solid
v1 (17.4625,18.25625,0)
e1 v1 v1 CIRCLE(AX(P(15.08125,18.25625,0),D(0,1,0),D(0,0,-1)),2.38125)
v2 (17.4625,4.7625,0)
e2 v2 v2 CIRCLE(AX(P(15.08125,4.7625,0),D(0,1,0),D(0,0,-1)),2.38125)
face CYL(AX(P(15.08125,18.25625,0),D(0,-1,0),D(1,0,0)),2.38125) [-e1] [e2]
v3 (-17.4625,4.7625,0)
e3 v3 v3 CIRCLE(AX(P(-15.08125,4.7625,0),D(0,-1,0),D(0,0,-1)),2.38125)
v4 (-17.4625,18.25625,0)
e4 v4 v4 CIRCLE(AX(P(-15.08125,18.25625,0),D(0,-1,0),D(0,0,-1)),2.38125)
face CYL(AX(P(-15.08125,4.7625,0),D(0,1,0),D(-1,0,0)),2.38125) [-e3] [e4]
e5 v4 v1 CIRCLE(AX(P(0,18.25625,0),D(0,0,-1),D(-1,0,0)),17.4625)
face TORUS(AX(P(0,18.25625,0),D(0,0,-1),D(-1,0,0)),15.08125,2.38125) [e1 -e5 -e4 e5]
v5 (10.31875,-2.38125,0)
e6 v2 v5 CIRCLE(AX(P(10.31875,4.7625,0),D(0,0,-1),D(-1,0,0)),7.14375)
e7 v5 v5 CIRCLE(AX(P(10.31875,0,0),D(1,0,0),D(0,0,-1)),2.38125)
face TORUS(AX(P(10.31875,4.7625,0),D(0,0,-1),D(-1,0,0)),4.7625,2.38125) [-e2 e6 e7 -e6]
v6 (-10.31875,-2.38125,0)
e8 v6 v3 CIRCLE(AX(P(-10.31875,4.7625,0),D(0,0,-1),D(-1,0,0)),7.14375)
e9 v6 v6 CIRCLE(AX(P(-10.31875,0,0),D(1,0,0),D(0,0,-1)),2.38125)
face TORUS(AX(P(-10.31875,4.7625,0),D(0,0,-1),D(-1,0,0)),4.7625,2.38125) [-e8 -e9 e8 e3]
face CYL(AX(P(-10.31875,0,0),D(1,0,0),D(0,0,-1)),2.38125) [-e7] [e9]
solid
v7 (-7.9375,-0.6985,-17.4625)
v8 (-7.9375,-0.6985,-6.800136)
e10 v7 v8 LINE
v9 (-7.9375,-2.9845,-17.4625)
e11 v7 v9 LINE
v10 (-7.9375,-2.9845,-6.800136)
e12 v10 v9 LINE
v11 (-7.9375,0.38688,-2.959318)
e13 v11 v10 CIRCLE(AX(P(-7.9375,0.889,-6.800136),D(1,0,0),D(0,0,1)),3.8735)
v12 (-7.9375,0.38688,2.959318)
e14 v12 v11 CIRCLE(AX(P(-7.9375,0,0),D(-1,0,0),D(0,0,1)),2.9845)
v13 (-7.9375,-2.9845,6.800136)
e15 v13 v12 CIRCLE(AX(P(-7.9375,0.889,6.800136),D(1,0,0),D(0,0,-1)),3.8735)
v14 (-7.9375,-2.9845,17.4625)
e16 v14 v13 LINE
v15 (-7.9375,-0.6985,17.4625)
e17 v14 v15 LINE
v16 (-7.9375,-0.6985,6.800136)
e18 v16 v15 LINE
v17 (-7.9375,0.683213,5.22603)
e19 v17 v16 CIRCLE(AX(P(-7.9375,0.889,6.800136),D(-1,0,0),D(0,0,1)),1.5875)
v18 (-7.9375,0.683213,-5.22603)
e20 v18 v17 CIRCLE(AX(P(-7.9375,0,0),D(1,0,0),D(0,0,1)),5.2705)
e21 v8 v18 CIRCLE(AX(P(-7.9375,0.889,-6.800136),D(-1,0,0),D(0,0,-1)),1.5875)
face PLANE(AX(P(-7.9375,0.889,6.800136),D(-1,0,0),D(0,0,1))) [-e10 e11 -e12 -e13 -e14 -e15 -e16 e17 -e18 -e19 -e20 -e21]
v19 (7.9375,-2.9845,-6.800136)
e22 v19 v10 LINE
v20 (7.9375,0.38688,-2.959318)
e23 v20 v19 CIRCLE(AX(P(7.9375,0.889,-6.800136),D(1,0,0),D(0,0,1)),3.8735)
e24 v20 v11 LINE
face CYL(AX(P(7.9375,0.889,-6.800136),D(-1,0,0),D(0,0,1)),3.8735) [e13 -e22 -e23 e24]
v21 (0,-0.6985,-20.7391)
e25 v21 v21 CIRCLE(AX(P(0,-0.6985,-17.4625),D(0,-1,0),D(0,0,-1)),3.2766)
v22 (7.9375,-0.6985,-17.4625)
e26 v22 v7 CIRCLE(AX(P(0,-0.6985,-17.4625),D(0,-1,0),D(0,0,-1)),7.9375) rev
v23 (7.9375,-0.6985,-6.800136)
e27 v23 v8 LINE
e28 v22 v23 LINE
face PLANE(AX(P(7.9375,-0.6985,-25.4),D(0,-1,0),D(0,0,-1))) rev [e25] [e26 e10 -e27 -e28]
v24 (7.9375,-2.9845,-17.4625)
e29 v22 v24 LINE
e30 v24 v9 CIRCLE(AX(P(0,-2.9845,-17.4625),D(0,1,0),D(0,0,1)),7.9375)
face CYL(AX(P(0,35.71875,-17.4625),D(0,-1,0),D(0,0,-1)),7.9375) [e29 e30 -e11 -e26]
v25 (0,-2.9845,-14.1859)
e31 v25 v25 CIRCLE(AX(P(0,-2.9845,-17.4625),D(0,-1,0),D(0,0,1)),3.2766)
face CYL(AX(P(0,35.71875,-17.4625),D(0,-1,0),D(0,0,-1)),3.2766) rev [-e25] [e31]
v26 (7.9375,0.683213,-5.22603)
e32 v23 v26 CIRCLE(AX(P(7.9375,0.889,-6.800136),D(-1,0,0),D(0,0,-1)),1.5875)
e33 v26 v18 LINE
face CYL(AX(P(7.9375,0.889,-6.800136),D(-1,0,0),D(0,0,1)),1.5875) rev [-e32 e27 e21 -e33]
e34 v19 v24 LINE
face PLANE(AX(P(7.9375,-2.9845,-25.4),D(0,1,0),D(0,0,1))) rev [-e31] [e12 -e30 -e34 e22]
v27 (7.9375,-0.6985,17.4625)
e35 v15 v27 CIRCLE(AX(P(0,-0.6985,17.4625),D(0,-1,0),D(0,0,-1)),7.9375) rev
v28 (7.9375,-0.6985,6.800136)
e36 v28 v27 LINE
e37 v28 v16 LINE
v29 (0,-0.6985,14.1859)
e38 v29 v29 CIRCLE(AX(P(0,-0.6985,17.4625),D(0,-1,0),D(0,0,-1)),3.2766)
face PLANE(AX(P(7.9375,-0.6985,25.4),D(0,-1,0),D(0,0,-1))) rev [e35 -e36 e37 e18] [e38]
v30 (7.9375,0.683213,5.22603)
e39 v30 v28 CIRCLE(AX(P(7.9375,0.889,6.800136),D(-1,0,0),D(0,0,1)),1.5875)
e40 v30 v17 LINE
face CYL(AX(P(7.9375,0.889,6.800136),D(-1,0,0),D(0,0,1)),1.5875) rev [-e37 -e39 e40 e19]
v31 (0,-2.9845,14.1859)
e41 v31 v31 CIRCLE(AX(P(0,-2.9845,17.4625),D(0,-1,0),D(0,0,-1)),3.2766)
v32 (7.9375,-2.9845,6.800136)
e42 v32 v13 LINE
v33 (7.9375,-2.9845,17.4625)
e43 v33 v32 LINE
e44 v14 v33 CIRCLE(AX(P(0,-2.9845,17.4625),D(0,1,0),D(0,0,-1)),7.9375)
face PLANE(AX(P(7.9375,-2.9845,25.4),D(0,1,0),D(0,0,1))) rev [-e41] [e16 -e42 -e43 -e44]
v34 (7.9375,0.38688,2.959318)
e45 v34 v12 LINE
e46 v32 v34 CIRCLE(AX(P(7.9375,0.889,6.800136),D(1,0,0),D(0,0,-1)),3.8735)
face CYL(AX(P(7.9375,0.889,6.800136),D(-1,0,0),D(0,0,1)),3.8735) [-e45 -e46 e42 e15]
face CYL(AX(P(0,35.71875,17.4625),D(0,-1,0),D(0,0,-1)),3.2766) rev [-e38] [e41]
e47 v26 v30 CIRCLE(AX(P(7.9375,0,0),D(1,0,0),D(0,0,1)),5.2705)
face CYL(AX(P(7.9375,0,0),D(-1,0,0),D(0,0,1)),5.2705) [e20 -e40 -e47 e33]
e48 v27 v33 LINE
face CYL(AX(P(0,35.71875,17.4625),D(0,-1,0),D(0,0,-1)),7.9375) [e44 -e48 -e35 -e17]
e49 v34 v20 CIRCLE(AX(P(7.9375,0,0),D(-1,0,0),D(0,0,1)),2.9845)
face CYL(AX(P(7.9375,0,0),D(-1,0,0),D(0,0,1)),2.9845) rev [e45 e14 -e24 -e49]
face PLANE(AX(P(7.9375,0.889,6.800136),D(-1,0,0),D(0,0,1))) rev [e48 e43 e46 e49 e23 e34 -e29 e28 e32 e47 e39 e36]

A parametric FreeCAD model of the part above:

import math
import FreeCAD as App
import Part
import Sketcher
Q = App.Units.Quantity

doc = App.newDocument("Part")
body = doc.addObject("PartDesign::Body", "Body")

# Sketch on YZ plane
sketch1 = body.newObject("Sketcher::SketchObject", "Sketch")
sketch1.AttachmentSupport = (doc.getObject("YZ_Plane"), [""])
sketch1.MapMode = "FlatFace"
sketch1.addGeometry(Part.Circle(App.Vector(0, 0, 0), App.Vector(0, 0, 1), 2.4), False)
sketch1.addConstraint(Sketcher.Constraint("Coincident", 0, 3, -1, 1))
sketch1.addConstraint(Sketcher.Constraint("Diameter", 0, Q("0.1875 in")))

# Sketch on XY plane
sketch2 = body.newObject("Sketcher::SketchObject", "Sketch001")
sketch2.AttachmentSupport = (doc.getObject("XY_Plane"), [""])
sketch2.MapMode = "FlatFace"
sketch2.addGeometry(Part.LineSegment(App.Vector(-15.1, 18.3, 0), App.Vector(-15.1, 4.8, 0)), False)
sketch2.addGeometry(Part.ArcOfCircle(Part.Circle(App.Vector(-10.3, 4.8, 0), App.Vector(0, 0, 1), 4.8), math.radians(-180), math.radians(-90)), False)
sketch2.addGeometry(Part.LineSegment(App.Vector(-10.3, 0, 0), App.Vector(10.3, 0, 0)), False)
sketch2.addGeometry(Part.ArcOfCircle(Part.Circle(App.Vector(10.3, 4.8, 0), App.Vector(0, 0, 1), 4.8), math.radians(-90), math.radians(0)), False)
sketch2.addGeometry(Part.LineSegment(App.Vector(15.1, 4.8, 0), App.Vector(15.1, 18.3, 0)), False)
sketch2.addGeometry(Part.ArcOfCircle(Part.Circle(App.Vector(0, 18.3, 0), App.Vector(0, 0, 1), 15.1), math.radians(0), math.radians(180)), False)
sketch2.addConstraint(Sketcher.Constraint("Tangent", 0, 2, 1, 1))
sketch2.addConstraint(Sketcher.Constraint("Tangent", 1, 2, 2, 1))
sketch2.addConstraint(Sketcher.Constraint("Tangent", 2, 2, 3, 1))
sketch2.addConstraint(Sketcher.Constraint("Tangent", 3, 2, 4, 1))
sketch2.addConstraint(Sketcher.Constraint("Tangent", 4, 2, 5, 1))
sketch2.addConstraint(Sketcher.Constraint("Tangent", 5, 2, 0, 1))
sketch2.addConstraint(Sketcher.Constraint("Vertical", 0))
sketch2.addConstraint(Sketcher.Constraint("Horizontal", 2))
sketch2.addConstraint(Sketcher.Constraint("Vertical", 4))
sketch2.addConstraint(Sketcher.Constraint("Equal", 1, 3))
sketch2.addConstraint(Sketcher.Constraint("Symmetric", 1, 2, 2, 2, -1, 1))
sketch2.addConstraint(Sketcher.Constraint("Radius", 1, Q("0.1875 in")))
sketch2.addConstraint(Sketcher.Constraint("Radius", 5, Q("0.59375 in")))
sketch2.addConstraint(Sketcher.Constraint("DistanceY", 0, 2, 0, 1, Q("0.53125 in")))
doc.recompute()

additivepipe = body.newObject("PartDesign::AdditivePipe", "AdditivePipe")
additivepipe.Profile = sketch1
additivepipe.Spine = (sketch2, ["Edge1", "Edge2", "Edge3", "Edge4", "Edge5", "Edge6"])
body2 = doc.addObject("PartDesign::Body", "Body001")

# Sketch on YZ plane
sketch3 = body2.newObject("Sketcher::SketchObject", "Sketch002")
sketch3.AttachmentSupport = (doc.getObject("YZ_Plane001"), [""])
sketch3.MapMode = "FlatFace"
sketch3.addGeometry(Part.LineSegment(App.Vector(-3, 25.4, 0), App.Vector(-3, 6.8, 0)), False)
sketch3.addGeometry(Part.ArcOfCircle(Part.Circle(App.Vector(0.9, 6.8, 0), App.Vector(0, 0, 1), 3.9), math.radians(-180), math.radians(-97)), False)
sketch3.addGeometry(Part.ArcOfCircle(Part.Circle(App.Vector(0, 0, 0), App.Vector(0, 0, 1), 3), math.radians(-83), math.radians(83)), False)
sketch3.addGeometry(Part.ArcOfCircle(Part.Circle(App.Vector(0.9, -6.8, 0), App.Vector(0, 0, 1), 3.9), math.radians(97), math.radians(180)), False)
sketch3.addGeometry(Part.LineSegment(App.Vector(-3, -6.8, 0), App.Vector(-3, -25.4, 0)), False)
sketch3.addGeometry(Part.LineSegment(App.Vector(-3, -25.4, 0), App.Vector(-0.7, -25.4, 0)), False)
sketch3.addGeometry(Part.LineSegment(App.Vector(-0.7, -25.4, 0), App.Vector(-0.7, -6.8, 0)), False)
sketch3.addGeometry(Part.ArcOfCircle(Part.Circle(App.Vector(0.9, -6.8, 0), App.Vector(0, 0, 1), 1.6), math.radians(97), math.radians(180)), False)
sketch3.addGeometry(Part.ArcOfCircle(Part.Circle(App.Vector(0, 0, 0), App.Vector(0, 0, 1), 5.3), math.radians(-83), math.radians(83)), False)
sketch3.addGeometry(Part.ArcOfCircle(Part.Circle(App.Vector(0.9, 6.8, 0), App.Vector(0, 0, 1), 1.6), math.radians(-180), math.radians(-97)), False)
sketch3.addGeometry(Part.LineSegment(App.Vector(-0.7, 6.8, 0), App.Vector(-0.7, 25.4, 0)), False)
sketch3.addGeometry(Part.LineSegment(App.Vector(-0.7, 25.4, 0), App.Vector(-3, 25.4, 0)), False)
sketch3.addConstraint(Sketcher.Constraint("Tangent", 0, 2, 1, 1))
sketch3.addConstraint(Sketcher.Constraint("Tangent", 1, 2, 2, 2))
sketch3.addConstraint(Sketcher.Constraint("Tangent", 2, 1, 3, 1))
sketch3.addConstraint(Sketcher.Constraint("Tangent", 3, 2, 4, 1))
sketch3.addConstraint(Sketcher.Constraint("Coincident", 4, 2, 5, 1))
sketch3.addConstraint(Sketcher.Constraint("Coincident", 5, 2, 6, 1))
sketch3.addConstraint(Sketcher.Constraint("Tangent", 6, 2, 7, 2))
sketch3.addConstraint(Sketcher.Constraint("Tangent", 7, 1, 8, 1))
sketch3.addConstraint(Sketcher.Constraint("Tangent", 8, 2, 9, 2))
sketch3.addConstraint(Sketcher.Constraint("Tangent", 9, 1, 10, 1))
sketch3.addConstraint(Sketcher.Constraint("Coincident", 10, 2, 11, 1))
sketch3.addConstraint(Sketcher.Constraint("Coincident", 11, 2, 0, 1))
sketch3.addConstraint(Sketcher.Constraint("Vertical", 0))
sketch3.addConstraint(Sketcher.Constraint("Vertical", 4))
sketch3.addConstraint(Sketcher.Constraint("Horizontal", 5))
sketch3.addConstraint(Sketcher.Constraint("Vertical", 6))
sketch3.addConstraint(Sketcher.Constraint("Vertical", 10))
sketch3.addConstraint(Sketcher.Constraint("Horizontal", 11))
sketch3.addConstraint(Sketcher.Constraint("Coincident", 2, 3, -1, 1))
sketch3.addConstraint(Sketcher.Constraint("Coincident", 8, 3, -1, 1))
sketch3.addConstraint(Sketcher.Constraint("Coincident", 7, 3, 3, 3))
sketch3.addConstraint(Sketcher.Constraint("Coincident", 9, 3, 1, 3))
sketch3.addConstraint(Sketcher.Constraint("Equal", 1, 3))
sketch3.addConstraint(Sketcher.Constraint("Symmetric", 5, 2, 10, 2, -1))
sketch3.addConstraint(Sketcher.Constraint("DistanceY", 4, 2, -1, 1, Q("1 in")))
sketch3.addConstraint(Sketcher.Constraint("Radius", 7, Q("0.0625 in")))
sketch3.addConstraint(Sketcher.Constraint("DistanceX", 5, 1, 5, 2, Q("0.09 in")))
sketch3.addConstraint(Sketcher.Constraint("Radius", 2, Q("0.1175 in")))
sketch3.addConstraint(Sketcher.Constraint("DistanceX", -1, 1, 1, 3, Q("0.035 in")))
pad1 = body2.newObject("PartDesign::Pad", "Pad")
pad1.Profile = sketch3
pad1.Length = Q("0.625 in")
pad1.Midplane = True

# Sketch on XZ plane
sketch4 = body2.newObject("Sketcher::SketchObject", "Sketch003")
sketch4.AttachmentSupport = (doc.getObject("XZ_Plane001"), [""])
sketch4.MapMode = "FlatFace"
sketch4.AttachmentOffset = App.Placement(App.Vector(0, 0, 0.1175 * 25.4), App.Rotation())
sketch4.addGeometry(Part.Circle(App.Vector(0, 17.5, 0), App.Vector(0, 0, 1), 3.3), False)
sketch4.addGeometry(Part.Circle(App.Vector(0, -17.5, 0), App.Vector(0, 0, 1), 3.3), False)
sketch4.addGeometry(Part.LineSegment(App.Vector(-7.9, 26.7, 0), App.Vector(-7.9, 17.5, 0)), False)
sketch4.addGeometry(Part.ArcOfCircle(Part.Circle(App.Vector(0, 17.5, 0), App.Vector(0, 0, 1), 7.9), math.radians(0), math.radians(180)), False)
sketch4.addGeometry(Part.LineSegment(App.Vector(7.9, 17.5, 0), App.Vector(7.9, 26.7, 0)), False)
sketch4.addGeometry(Part.LineSegment(App.Vector(7.9, 26.7, 0), App.Vector(-7.9, 26.7, 0)), False)
sketch4.addGeometry(Part.ArcOfCircle(Part.Circle(App.Vector(0, -17.5, 0), App.Vector(0, 0, 1), 7.9), math.radians(180), math.radians(360)), False)
sketch4.addGeometry(Part.LineSegment(App.Vector(-7.9, -17.5, 0), App.Vector(-7.9, -26.7, 0)), False)
sketch4.addGeometry(Part.LineSegment(App.Vector(-7.9, -26.7, 0), App.Vector(7.9, -26.7, 0)), False)
sketch4.addGeometry(Part.LineSegment(App.Vector(7.9, -26.7, 0), App.Vector(7.9, -17.5, 0)), False)
sketch4.addConstraint(Sketcher.Constraint("Tangent", 2, 2, 3, 2))
sketch4.addConstraint(Sketcher.Constraint("Tangent", 3, 1, 4, 1))
sketch4.addConstraint(Sketcher.Constraint("Coincident", 4, 2, 5, 1))
sketch4.addConstraint(Sketcher.Constraint("Coincident", 5, 2, 2, 1))
sketch4.addConstraint(Sketcher.Constraint("Tangent", 6, 1, 7, 1))
sketch4.addConstraint(Sketcher.Constraint("Coincident", 7, 2, 8, 1))
sketch4.addConstraint(Sketcher.Constraint("Coincident", 8, 2, 9, 1))
sketch4.addConstraint(Sketcher.Constraint("Tangent", 9, 2, 6, 2))
sketch4.addConstraint(Sketcher.Constraint("Vertical", 2))
sketch4.addConstraint(Sketcher.Constraint("Vertical", 4))
sketch4.addConstraint(Sketcher.Constraint("Horizontal", 5))
sketch4.addConstraint(Sketcher.Constraint("Vertical", 7))
sketch4.addConstraint(Sketcher.Constraint("Horizontal", 8))
sketch4.addConstraint(Sketcher.Constraint("Vertical", 9))
sketch4.addConstraint(Sketcher.Constraint("Coincident", 3, 3, 0, 3))
sketch4.addConstraint(Sketcher.Constraint("Coincident", 6, 3, 1, 3))
sketch4.addConstraint(Sketcher.Constraint("Equal", 0, 1))
sketch4.addConstraint(Sketcher.Constraint("Equal", 3, 6))
sketch4.addConstraint(Sketcher.Constraint("Symmetric", 0, 3, 1, 3, -1, 1))
sketch4.addConstraint(Sketcher.Constraint("Symmetric", 5, 2, 7, 2, -1))
sketch4.addConstraint(Sketcher.Constraint("Diameter", 0, Q("0.258 in")))
sketch4.addConstraint(Sketcher.Constraint("Radius", 3, Q("0.3125 in")))
sketch4.addConstraint(Sketcher.Constraint("DistanceY", -1, 1, 4, 2, Q("1.05 in")))
sketch4.addConstraint(Sketcher.Constraint("DistanceY", 2, 2, 2, 1, Q("0.3625 in")))
pocket1 = body2.newObject("PartDesign::Pocket", "Pocket")
pocket1.Profile = sketch4
pocket1.Type = "ThroughAll"

doc.recompute()
